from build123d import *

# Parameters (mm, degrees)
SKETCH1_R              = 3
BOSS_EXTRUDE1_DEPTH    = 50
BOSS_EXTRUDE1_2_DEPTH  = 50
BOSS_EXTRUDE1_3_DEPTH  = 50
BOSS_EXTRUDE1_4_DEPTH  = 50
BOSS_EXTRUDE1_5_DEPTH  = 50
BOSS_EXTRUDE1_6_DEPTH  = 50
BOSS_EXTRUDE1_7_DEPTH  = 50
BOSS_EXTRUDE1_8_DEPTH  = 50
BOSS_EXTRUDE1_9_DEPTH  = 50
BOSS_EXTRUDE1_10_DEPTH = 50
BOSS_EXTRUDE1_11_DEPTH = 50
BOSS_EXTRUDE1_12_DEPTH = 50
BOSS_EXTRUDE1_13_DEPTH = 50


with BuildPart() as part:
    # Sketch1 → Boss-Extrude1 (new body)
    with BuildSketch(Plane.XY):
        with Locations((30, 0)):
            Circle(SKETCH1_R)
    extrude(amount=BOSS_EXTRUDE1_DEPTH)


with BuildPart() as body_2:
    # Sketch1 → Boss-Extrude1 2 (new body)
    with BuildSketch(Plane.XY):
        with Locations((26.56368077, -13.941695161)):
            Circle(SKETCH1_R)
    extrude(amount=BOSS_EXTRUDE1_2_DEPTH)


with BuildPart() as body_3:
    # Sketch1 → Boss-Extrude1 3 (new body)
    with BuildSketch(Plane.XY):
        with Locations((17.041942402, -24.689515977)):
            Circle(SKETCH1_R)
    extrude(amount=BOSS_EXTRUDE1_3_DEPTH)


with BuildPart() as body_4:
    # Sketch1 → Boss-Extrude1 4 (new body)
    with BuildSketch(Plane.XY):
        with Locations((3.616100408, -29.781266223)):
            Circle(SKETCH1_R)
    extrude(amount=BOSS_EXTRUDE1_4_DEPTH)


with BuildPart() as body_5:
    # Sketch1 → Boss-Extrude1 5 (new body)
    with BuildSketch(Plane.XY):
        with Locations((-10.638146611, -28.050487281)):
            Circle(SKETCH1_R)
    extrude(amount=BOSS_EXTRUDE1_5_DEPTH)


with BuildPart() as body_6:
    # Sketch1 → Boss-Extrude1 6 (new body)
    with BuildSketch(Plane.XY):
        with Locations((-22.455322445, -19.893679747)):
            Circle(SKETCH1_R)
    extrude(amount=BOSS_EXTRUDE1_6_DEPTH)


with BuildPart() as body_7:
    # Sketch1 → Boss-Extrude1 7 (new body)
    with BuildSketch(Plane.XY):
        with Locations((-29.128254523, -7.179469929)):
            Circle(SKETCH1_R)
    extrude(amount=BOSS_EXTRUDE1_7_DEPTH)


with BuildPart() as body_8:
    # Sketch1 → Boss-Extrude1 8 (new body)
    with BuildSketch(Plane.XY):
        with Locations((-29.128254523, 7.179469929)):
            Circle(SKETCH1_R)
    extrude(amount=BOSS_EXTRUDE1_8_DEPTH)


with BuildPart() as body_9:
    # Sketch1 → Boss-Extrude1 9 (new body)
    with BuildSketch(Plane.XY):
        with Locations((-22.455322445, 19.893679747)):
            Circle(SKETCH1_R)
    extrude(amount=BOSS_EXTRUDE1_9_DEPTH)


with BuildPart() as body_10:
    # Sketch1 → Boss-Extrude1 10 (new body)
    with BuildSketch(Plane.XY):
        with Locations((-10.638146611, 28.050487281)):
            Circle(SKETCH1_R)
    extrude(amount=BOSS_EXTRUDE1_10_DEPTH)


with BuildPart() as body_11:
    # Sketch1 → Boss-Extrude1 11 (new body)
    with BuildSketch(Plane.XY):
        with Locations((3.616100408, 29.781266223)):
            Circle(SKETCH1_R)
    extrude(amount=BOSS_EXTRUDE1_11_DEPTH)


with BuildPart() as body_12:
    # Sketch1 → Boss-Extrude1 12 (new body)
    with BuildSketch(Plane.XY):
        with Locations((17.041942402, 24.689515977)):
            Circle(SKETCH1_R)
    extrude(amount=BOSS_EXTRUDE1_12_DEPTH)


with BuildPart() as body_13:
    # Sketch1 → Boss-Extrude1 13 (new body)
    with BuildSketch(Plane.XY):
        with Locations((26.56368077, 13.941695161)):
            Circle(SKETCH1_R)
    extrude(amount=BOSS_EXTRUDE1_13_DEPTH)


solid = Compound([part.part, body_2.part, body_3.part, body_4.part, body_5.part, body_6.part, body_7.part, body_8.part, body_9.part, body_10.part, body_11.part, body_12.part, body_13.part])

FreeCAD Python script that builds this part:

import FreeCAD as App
import Part
import Sketcher
from FreeCAD import Vector

doc = App.newDocument("Part")
body = doc.addObject("PartDesign::Body", "Body")

# Sketch on XY plane
sketch1 = body.newObject("Sketcher::SketchObject", "Sketch")
sketch1.AttachmentSupport = (doc.getObject("XY_Plane"), [""])
sketch1.MapMode = "FlatFace"
sketch1.addGeometry(Part.Circle(Vector(30, 0, 0), Vector(0, 0, 1), 3), False)
sketch1.addConstraint(Sketcher.Constraint("PointOnObject", 0, 3, -1))
sketch1.addConstraint(Sketcher.Constraint("Diameter", 0, 6.0))
sketch1.addConstraint(Sketcher.Constraint("DistanceX", -1, 1, 0, 3, 30.0))
pad1 = body.newObject("PartDesign::Pad", "Pad")
pad1.Profile = sketch1
pad1.Length = 50
body2 = doc.addObject("PartDesign::Body", "Body001")

# Sketch on XY plane
sketch2 = body2.newObject("Sketcher::SketchObject", "Sketch001")
sketch2.AttachmentSupport = (doc.getObject("XY_Plane001"), [""])
sketch2.MapMode = "FlatFace"
sketch2.addGeometry(Part.Circle(Vector(26.563681, -13.941695, 0), Vector(0, 0, 1), 3), False)
sketch2.addConstraint(Sketcher.Constraint("Diameter", 0, 6.0))
sketch2.addConstraint(Sketcher.Constraint("DistanceX", -1, 1, 0, 3, 26.563681))
sketch2.addConstraint(Sketcher.Constraint("DistanceY", 0, 3, -1, 1, 13.941695))
pad2 = body2.newObject("PartDesign::Pad", "Pad001")
pad2.Profile = sketch2
pad2.Length = 50
body3 = doc.addObject("PartDesign::Body", "Body002")

# Sketch on XY plane
sketch3 = body3.newObject("Sketcher::SketchObject", "Sketch002")
sketch3.AttachmentSupport = (doc.getObject("XY_Plane002"), [""])
sketch3.MapMode = "FlatFace"
sketch3.addGeometry(Part.Circle(Vector(17.041942, -24.689516, 0), Vector(0, 0, 1), 3), False)
sketch3.addConstraint(Sketcher.Constraint("Diameter", 0, 6.0))
sketch3.addConstraint(Sketcher.Constraint("DistanceX", -1, 1, 0, 3, 17.041942))
sketch3.addConstraint(Sketcher.Constraint("DistanceY", 0, 3, -1, 1, 24.689516))
pad3 = body3.newObject("PartDesign::Pad", "Pad002")
pad3.Profile = sketch3
pad3.Length = 50
body4 = doc.addObject("PartDesign::Body", "Body003")

# Sketch on XY plane
sketch4 = body4.newObject("Sketcher::SketchObject", "Sketch003")
sketch4.AttachmentSupport = (doc.getObject("XY_Plane003"), [""])
sketch4.MapMode = "FlatFace"
sketch4.addGeometry(Part.Circle(Vector(3.6161, -29.781266, 0), Vector(0, 0, 1), 3), False)
sketch4.addConstraint(Sketcher.Constraint("Diameter", 0, 6.0))
sketch4.addConstraint(Sketcher.Constraint("DistanceX", -1, 1, 0, 3, 3.6161))
sketch4.addConstraint(Sketcher.Constraint("DistanceY", 0, 3, -1, 1, 29.781266))
pad4 = body4.newObject("PartDesign::Pad", "Pad003")
pad4.Profile = sketch4
pad4.Length = 50
body5 = doc.addObject("PartDesign::Body", "Body004")

# Sketch on XY plane
sketch5 = body5.newObject("Sketcher::SketchObject", "Sketch004")
sketch5.AttachmentSupport = (doc.getObject("XY_Plane004"), [""])
sketch5.MapMode = "FlatFace"
sketch5.addGeometry(Part.Circle(Vector(-10.638147, -28.050487, 0), Vector(0, 0, 1), 3), False)
sketch5.addConstraint(Sketcher.Constraint("Diameter", 0, 6.0))
sketch5.addConstraint(Sketcher.Constraint("DistanceX", 0, 3, -1, 1, 10.638147))
sketch5.addConstraint(Sketcher.Constraint("DistanceY", 0, 3, -1, 1, 28.050487))
pad5 = body5.newObject("PartDesign::Pad", "Pad004")
pad5.Profile = sketch5
pad5.Length = 50
body6 = doc.addObject("PartDesign::Body", "Body005")

# Sketch on XY plane
sketch6 = body6.newObject("Sketcher::SketchObject", "Sketch005")
sketch6.AttachmentSupport = (doc.getObject("XY_Plane005"), [""])
sketch6.MapMode = "FlatFace"
sketch6.addGeometry(Part.Circle(Vector(-22.455322, -19.89368, 0), Vector(0, 0, 1), 3), False)
sketch6.addConstraint(Sketcher.Constraint("Diameter", 0, 6.0))
sketch6.addConstraint(Sketcher.Constraint("DistanceY", 0, 3, -1, 1, 19.89368))
sketch6.addConstraint(Sketcher.Constraint("DistanceX", 0, 3, -1, 1, 22.455322))
pad6 = body6.newObject("PartDesign::Pad", "Pad005")
pad6.Profile = sketch6
pad6.Length = 50
body7 = doc.addObject("PartDesign::Body", "Body006")

# Sketch on XY plane
sketch7 = body7.newObject("Sketcher::SketchObject", "Sketch006")
sketch7.AttachmentSupport = (doc.getObject("XY_Plane006"), [""])
sketch7.MapMode = "FlatFace"
sketch7.addGeometry(Part.Circle(Vector(-29.128255, -7.17947, 0), Vector(0, 0, 1), 3), False)
sketch7.addConstraint(Sketcher.Constraint("Diameter", 0, 6.0))
sketch7.addConstraint(Sketcher.Constraint("DistanceY", 0, 3, -1, 1, 7.17947))
sketch7.addConstraint(Sketcher.Constraint("DistanceX", 0, 3, -1, 1, 29.128255))
pad7 = body7.newObject("PartDesign::Pad", "Pad006")
pad7.Profile = sketch7
pad7.Length = 50
body8 = doc.addObject("PartDesign::Body", "Body007")

# Sketch on XY plane
sketch8 = body8.newObject("Sketcher::SketchObject", "Sketch007")
sketch8.AttachmentSupport = (doc.getObject("XY_Plane007"), [""])
sketch8.MapMode = "FlatFace"
sketch8.addGeometry(Part.Circle(Vector(-29.128255, 7.17947, 0), Vector(0, 0, 1), 3), False)
sketch8.addConstraint(Sketcher.Constraint("Diameter", 0, 6.0))
sketch8.addConstraint(Sketcher.Constraint("DistanceY", -1, 1, 0, 3, 7.17947))
sketch8.addConstraint(Sketcher.Constraint("DistanceX", 0, 3, -1, 1, 29.128255))
pad8 = body8.newObject("PartDesign::Pad", "Pad007")
pad8.Profile = sketch8
pad8.Length = 50
body9 = doc.addObject("PartDesign::Body", "Body008")

# Sketch on XY plane
sketch9 = body9.newObject("Sketcher::SketchObject", "Sketch008")
sketch9.AttachmentSupport = (doc.getObject("XY_Plane008"), [""])
sketch9.MapMode = "FlatFace"
sketch9.addGeometry(Part.Circle(Vector(-22.455322, 19.89368, 0), Vector(0, 0, 1), 3), False)
sketch9.addConstraint(Sketcher.Constraint("Diameter", 0, 6.0))
sketch9.addConstraint(Sketcher.Constraint("DistanceY", -1, 1, 0, 3, 19.89368))
sketch9.addConstraint(Sketcher.Constraint("DistanceX", 0, 3, -1, 1, 22.455322))
pad9 = body9.newObject("PartDesign::Pad", "Pad008")
pad9.Profile = sketch9
pad9.Length = 50
body10 = doc.addObject("PartDesign::Body", "Body009")

# Sketch on XY plane
sketch10 = body10.newObject("Sketcher::SketchObject", "Sketch009")
sketch10.AttachmentSupport = (doc.getObject("XY_Plane009"), [""])
sketch10.MapMode = "FlatFace"
sketch10.addGeometry(Part.Circle(Vector(-10.638147, 28.050487, 0), Vector(0, 0, 1), 3), False)
sketch10.addConstraint(Sketcher.Constraint("Diameter", 0, 6.0))
sketch10.addConstraint(Sketcher.Constraint("DistanceX", 0, 3, -1, 1, 10.638147))
sketch10.addConstraint(Sketcher.Constraint("DistanceY", -1, 1, 0, 3, 28.050487))
pad10 = body10.newObject("PartDesign::Pad", "Pad009")
pad10.Profile = sketch10
pad10.Length = 50
body11 = doc.addObject("PartDesign::Body", "Body010")

# Sketch on XY plane
sketch11 = body11.newObject("Sketcher::SketchObject", "Sketch010")
sketch11.AttachmentSupport = (doc.getObject("XY_Plane010"), [""])
sketch11.MapMode = "FlatFace"
sketch11.addGeometry(Part.Circle(Vector(3.6161, 29.781266, 0), Vector(0, 0, 1), 3), False)
sketch11.addConstraint(Sketcher.Constraint("Diameter", 0, 6.0))
sketch11.addConstraint(Sketcher.Constraint("DistanceX", -1, 1, 0, 3, 3.6161))
sketch11.addConstraint(Sketcher.Constraint("DistanceY", -1, 1, 0, 3, 29.781266))
pad11 = body11.newObject("PartDesign::Pad", "Pad010")
pad11.Profile = sketch11
pad11.Length = 50
body12 = doc.addObject("PartDesign::Body", "Body011")

# Sketch on XY plane
sketch12 = body12.newObject("Sketcher::SketchObject", "Sketch011")
sketch12.AttachmentSupport = (doc.getObject("XY_Plane011"), [""])
sketch12.MapMode = "FlatFace"
sketch12.addGeometry(Part.Circle(Vector(17.041942, 24.689516, 0), Vector(0, 0, 1), 3), False)
sketch12.addConstraint(Sketcher.Constraint("Diameter", 0, 6.0))
sketch12.addConstraint(Sketcher.Constraint("DistanceX", -1, 1, 0, 3, 17.041942))
sketch12.addConstraint(Sketcher.Constraint("DistanceY", -1, 1, 0, 3, 24.689516))
pad12 = body12.newObject("PartDesign::Pad", "Pad011")
pad12.Profile = sketch12
pad12.Length = 50
body13 = doc.addObject("PartDesign::Body", "Body012")

# Sketch on XY plane
sketch13 = body13.newObject("Sketcher::SketchObject", "Sketch012")
sketch13.AttachmentSupport = (doc.getObject("XY_Plane012"), [""])
sketch13.MapMode = "FlatFace"
sketch13.addGeometry(Part.Circle(Vector(26.563681, 13.941695, 0), Vector(0, 0, 1), 3), False)
sketch13.addConstraint(Sketcher.Constraint("Diameter", 0, 6.0))
sketch13.addConstraint(Sketcher.Constraint("DistanceX", -1, 1, 0, 3, 26.563681))
sketch13.addConstraint(Sketcher.Constraint("DistanceY", -1, 1, 0, 3, 13.941695))
pad13 = body13.newObject("PartDesign::Pad", "Pad012")
pad13.Profile = sketch13
pad13.Length = 50

doc.recompute()
